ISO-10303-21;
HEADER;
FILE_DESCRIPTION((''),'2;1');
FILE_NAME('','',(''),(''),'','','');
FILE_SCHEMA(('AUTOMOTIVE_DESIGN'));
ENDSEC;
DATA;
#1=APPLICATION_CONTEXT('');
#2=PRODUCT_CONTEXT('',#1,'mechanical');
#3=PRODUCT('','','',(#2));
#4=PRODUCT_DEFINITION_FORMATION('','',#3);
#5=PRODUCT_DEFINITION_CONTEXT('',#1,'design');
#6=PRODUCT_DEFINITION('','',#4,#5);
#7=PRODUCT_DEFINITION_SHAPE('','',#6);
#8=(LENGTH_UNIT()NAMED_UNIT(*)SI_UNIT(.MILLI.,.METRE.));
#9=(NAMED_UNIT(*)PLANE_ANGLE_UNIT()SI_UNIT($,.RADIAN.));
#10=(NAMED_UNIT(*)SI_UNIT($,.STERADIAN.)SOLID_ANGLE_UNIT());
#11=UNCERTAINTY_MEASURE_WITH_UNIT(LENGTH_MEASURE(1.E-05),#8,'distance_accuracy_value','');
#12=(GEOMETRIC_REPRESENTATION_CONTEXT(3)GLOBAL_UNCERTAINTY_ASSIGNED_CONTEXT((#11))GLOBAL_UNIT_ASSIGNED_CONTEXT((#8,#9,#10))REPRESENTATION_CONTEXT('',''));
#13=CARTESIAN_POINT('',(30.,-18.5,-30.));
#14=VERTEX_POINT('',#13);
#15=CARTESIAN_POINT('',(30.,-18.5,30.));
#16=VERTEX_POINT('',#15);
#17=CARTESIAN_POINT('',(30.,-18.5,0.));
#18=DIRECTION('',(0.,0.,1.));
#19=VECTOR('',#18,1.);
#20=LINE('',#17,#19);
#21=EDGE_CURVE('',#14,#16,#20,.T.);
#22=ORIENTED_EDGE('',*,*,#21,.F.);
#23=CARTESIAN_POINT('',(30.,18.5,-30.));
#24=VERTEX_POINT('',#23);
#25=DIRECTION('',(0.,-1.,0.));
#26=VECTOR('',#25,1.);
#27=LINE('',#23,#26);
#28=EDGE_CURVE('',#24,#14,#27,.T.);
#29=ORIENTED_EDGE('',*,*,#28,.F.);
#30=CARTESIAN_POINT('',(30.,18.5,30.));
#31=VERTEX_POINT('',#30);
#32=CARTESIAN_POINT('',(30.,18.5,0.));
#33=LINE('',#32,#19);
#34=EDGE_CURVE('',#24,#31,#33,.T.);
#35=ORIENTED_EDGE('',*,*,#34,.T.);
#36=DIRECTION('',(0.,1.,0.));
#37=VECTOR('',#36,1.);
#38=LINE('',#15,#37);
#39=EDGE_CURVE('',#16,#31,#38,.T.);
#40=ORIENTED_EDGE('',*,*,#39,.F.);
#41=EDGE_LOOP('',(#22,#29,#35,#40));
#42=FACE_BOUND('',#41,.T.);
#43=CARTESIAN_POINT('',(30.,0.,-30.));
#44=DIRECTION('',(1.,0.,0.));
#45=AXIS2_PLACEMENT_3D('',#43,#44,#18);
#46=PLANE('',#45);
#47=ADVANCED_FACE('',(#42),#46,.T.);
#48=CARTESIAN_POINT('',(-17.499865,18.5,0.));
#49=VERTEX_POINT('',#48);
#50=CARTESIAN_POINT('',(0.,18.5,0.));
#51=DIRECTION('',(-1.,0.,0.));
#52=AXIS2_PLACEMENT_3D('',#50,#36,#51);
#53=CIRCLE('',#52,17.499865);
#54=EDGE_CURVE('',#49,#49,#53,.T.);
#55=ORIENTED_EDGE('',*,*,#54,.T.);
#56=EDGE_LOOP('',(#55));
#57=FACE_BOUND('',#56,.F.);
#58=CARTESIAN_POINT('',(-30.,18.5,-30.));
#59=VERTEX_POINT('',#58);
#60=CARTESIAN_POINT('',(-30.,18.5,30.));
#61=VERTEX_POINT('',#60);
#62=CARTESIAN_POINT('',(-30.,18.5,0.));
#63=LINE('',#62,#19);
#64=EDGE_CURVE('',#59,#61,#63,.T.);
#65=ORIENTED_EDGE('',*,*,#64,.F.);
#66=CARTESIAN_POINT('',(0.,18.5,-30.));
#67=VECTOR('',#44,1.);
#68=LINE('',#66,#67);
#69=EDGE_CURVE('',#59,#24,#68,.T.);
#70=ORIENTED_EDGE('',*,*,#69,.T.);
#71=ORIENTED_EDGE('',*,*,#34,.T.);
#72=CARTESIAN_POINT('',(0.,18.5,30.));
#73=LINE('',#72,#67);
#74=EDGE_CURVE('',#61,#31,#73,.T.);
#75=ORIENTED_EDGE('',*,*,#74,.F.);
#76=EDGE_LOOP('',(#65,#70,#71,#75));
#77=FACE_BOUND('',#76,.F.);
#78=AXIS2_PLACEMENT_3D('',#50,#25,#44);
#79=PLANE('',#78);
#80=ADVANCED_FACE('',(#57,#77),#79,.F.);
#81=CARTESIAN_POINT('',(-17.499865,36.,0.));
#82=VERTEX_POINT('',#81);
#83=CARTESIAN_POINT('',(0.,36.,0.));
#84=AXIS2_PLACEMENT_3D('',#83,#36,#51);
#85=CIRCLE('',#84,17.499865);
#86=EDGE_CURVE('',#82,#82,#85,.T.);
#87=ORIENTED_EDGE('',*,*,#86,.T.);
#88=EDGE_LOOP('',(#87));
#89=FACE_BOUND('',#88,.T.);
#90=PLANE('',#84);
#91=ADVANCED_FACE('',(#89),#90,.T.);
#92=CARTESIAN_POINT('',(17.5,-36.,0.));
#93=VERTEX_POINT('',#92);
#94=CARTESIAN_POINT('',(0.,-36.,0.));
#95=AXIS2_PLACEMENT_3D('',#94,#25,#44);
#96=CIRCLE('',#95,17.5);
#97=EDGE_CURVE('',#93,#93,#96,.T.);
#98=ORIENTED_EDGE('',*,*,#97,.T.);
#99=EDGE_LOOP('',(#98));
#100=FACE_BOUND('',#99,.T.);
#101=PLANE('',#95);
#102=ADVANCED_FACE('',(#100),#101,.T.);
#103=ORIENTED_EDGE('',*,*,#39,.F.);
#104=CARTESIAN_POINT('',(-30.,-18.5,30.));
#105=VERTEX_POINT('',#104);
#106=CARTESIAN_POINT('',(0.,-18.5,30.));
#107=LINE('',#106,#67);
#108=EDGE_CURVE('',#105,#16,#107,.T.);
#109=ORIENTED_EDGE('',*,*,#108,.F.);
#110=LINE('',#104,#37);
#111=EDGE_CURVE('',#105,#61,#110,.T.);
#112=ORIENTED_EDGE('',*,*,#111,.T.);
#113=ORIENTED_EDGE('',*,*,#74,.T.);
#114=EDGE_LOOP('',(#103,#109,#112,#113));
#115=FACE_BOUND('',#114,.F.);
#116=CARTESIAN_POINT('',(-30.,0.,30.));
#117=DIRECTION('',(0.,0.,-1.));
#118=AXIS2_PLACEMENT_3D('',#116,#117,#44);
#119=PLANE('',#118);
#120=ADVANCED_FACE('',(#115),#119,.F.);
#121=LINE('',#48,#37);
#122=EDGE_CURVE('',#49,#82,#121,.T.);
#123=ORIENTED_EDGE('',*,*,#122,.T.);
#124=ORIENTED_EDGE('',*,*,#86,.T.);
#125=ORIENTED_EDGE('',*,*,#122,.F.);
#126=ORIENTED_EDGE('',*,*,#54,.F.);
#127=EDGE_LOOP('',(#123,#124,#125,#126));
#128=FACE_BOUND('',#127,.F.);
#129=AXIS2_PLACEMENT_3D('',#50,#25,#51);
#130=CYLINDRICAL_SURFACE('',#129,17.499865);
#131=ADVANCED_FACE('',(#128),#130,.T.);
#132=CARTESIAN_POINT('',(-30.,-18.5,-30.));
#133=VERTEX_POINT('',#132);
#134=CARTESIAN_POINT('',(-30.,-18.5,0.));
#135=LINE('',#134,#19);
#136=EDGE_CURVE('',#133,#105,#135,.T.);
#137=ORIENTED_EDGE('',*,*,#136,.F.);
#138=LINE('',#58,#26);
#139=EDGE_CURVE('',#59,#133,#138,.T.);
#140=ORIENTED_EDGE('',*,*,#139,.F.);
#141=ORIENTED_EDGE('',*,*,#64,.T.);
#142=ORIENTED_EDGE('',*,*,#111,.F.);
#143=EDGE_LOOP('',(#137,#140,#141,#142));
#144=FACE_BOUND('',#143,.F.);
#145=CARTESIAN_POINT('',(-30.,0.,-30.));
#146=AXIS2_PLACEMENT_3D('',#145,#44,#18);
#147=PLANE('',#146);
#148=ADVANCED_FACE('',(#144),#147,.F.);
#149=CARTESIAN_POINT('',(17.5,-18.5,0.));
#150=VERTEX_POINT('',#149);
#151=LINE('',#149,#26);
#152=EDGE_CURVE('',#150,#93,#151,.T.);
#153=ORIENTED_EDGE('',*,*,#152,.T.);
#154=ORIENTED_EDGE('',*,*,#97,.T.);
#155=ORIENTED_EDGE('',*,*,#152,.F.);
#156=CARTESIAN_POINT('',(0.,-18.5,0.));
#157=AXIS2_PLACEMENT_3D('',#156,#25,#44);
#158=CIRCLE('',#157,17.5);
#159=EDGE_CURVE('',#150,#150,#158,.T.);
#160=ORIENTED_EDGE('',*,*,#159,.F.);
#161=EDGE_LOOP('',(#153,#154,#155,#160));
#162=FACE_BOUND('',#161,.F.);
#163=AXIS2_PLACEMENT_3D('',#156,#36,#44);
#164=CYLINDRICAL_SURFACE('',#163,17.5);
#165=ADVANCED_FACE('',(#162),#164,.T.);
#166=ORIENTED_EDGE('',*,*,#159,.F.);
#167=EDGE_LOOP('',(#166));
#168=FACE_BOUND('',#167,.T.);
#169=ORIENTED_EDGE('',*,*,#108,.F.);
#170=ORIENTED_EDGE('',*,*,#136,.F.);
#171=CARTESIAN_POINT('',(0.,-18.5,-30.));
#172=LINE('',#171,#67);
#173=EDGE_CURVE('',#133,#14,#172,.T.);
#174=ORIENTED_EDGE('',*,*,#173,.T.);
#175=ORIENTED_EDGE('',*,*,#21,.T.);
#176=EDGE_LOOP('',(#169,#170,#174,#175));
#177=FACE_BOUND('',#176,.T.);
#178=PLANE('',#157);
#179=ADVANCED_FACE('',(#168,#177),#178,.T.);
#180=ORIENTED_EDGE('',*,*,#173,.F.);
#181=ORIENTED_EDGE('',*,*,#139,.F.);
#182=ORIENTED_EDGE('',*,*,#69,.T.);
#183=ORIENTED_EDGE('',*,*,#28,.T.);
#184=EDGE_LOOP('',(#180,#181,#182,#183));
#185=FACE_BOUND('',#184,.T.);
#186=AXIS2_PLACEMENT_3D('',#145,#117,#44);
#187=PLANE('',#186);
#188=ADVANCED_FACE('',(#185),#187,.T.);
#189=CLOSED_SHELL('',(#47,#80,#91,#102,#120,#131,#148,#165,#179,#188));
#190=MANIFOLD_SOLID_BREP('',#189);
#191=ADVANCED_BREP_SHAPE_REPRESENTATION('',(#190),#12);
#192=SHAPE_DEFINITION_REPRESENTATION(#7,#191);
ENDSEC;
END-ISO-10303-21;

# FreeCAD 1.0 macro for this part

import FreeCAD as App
import Part
import Sketcher
from FreeCAD import Vector


def add_polygon(sketch, points):
    """Adds a closed chain of lines whose ends are joined by coincident constraints."""
    first, n = sketch.GeometryCount, len(points)
    for a, b in zip(points, points[1:] + points[:1]):
        sketch.addGeometry(Part.LineSegment(App.Vector(*a, 0), App.Vector(*b, 0)), False)
    for i in range(n):
        sketch.addConstraint(Sketcher.Constraint("Coincident", first + i, 2, first + (i + 1) % n, 1))

doc = App.newDocument("Part")
body = doc.addObject("PartDesign::Body", "Body")

sketch1 = doc.addObject("Sketcher::SketchObject", "Sketch")
body.addObject(sketch1)
sketch1.AttachmentSupport = (doc.XZ_Plane, [""])
sketch1.MapMode = "FlatFace"
add_polygon(sketch1, [(-30, 30), (-30, -30), (30, -30), (30, 30)])
sketch1.addConstraint([
    Sketcher.Constraint("Vertical", 0),
    Sketcher.Constraint("Horizontal", 1),
    Sketcher.Constraint("Vertical", 2),
    Sketcher.Constraint("Horizontal", 3),
    Sketcher.Constraint("Symmetric", 0, 2, 2, 2, -1, 1),
    Sketcher.Constraint("Equal", 3, 0),
    Sketcher.Constraint("DistanceX", 1, 1, 1, 2, 60.0),
])
pad1 = doc.addObject("PartDesign::Pad", "Pad")
body.addObject(pad1)
pad1.Profile = sketch1
pad1.Length = 37
pad1.Midplane = True

sketch2 = doc.addObject("Sketcher::SketchObject", "Sketch001")
body.addObject(sketch2)
sketch2.AttachmentSupport = (doc.XZ_Plane, [""])
sketch2.MapMode = "FlatFace"
sketch2.AttachmentOffset = App.Placement(Vector(0, 0, 18.5), App.Rotation())
sketch2.addGeometry(Part.Circle(Vector(0, 0, 0), Vector(0, 0, 1), 18), False)
sketch2.addConstraint([
    Sketcher.Constraint("Coincident", 0, 3, -1, 1),
    Sketcher.Constraint("Diameter", 0, 35.0),
])
pad2 = doc.addObject("PartDesign::Pad", "Pad001")
body.addObject(pad2)
pad2.Profile = sketch2
pad2.Length = 17.5

sketch3 = doc.addObject("Sketcher::SketchObject", "Sketch002")
body.addObject(sketch3)
sketch3.AttachmentSupport = (doc.XZ_Plane, [""])
sketch3.MapMode = "FlatFace"
sketch3.AttachmentOffset = App.Placement(Vector(0, 0, -18.5), App.Rotation())
sketch3.addGeometry(Part.Circle(Vector(0, 0, 0), Vector(0, 0, 1), 17), False)
sketch3.addConstraint([
    Sketcher.Constraint("Coincident", 0, 3, -1, 1),
    Sketcher.Constraint("Diameter", 0, 34.999729),
])
pad3 = doc.addObject("PartDesign::Pad", "Pad002")
body.addObject(pad3)
pad3.Profile = sketch3
pad3.Length = 17.5
pad3.Reversed = True

doc.recompute()
